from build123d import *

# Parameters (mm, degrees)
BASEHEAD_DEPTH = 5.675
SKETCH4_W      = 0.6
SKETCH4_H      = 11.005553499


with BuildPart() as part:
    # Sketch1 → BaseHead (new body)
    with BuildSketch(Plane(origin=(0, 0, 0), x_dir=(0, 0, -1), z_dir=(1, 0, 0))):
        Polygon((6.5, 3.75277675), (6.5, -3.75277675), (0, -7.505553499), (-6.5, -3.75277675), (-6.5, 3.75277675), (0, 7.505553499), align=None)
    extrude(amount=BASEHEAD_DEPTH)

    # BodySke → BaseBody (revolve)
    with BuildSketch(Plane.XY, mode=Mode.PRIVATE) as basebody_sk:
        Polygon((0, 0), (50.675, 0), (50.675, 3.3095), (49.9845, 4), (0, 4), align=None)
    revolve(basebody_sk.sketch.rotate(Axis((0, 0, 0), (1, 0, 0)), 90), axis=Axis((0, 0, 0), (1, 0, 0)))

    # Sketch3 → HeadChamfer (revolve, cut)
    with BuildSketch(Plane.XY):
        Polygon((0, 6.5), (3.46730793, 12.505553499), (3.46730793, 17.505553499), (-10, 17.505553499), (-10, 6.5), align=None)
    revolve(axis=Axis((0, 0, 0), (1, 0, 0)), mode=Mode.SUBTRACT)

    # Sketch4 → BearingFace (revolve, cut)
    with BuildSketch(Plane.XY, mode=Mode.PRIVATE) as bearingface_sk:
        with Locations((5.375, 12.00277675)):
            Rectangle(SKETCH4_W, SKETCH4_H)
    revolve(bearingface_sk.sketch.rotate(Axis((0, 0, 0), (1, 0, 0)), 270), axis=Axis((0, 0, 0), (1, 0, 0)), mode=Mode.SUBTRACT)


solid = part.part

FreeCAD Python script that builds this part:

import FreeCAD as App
import Part
import Sketcher
from FreeCAD import Vector
Q = App.Units.Quantity


def add_polygon(sketch, points):
    """Adds a closed chain of lines whose ends are joined by coincident constraints."""
    first, n = sketch.GeometryCount, len(points)
    for a, b in zip(points, points[1:] + points[:1]):
        sketch.addGeometry(Part.LineSegment(App.Vector(*a, 0), App.Vector(*b, 0)), False)
    for i in range(n):
        sketch.addConstraint(Sketcher.Constraint("Coincident", first + i, 2, first + (i + 1) % n, 1))

doc = App.newDocument("Part")
params = doc.addObject("Spreadsheet::Sheet", "Params")
for row, (alias, value) in enumerate([
    ("pad1_length", "5.675 mm"),
    ("sketch2_height", "4 mm"),
    ("revolution_angle", "360 deg"),
    ("sketch3_width", "10 mm"),
    ("sketch3_height", "5 mm"),
    ("groove_angle", "360 deg"),
    ("sketch4_width", "0.6 mm"),
    ("groove2_angle", "360 deg"),
], start=1):
    params.set(f"A{row}", alias)
    params.set(f"B{row}", "=" + value)
    params.setAlias(f"B{row}", alias)

body = doc.addObject("PartDesign::Body", "Body")

# Sketch on YZ plane
sketch1 = body.newObject("Sketcher::SketchObject", "Sketch")
sketch1.AttachmentSupport = (doc.getObject("YZ_Plane"), [""])
sketch1.MapMode = "FlatFace"
add_polygon(sketch1, [(-4, -6), (4, -6), (8, 0), (4, 6), (-4, 6), (-8, 0)])  # lines 0-5
sketch1.addConstraint([
    Sketcher.Constraint("Horizontal", 0),
    Sketcher.Constraint("Horizontal", 3),
    Sketcher.Constraint("Symmetric", 0, 2, 3, 2, -1, 1),
    Sketcher.Constraint("Symmetric", 1, 2, 4, 2, -1, 1),
    Sketcher.Constraint("PointOnObject", 1, 2, -1),
    Sketcher.Constraint("Parallel", 2, 5),
    Sketcher.Constraint("Vertical", 0, 2, 2, 2),
    Sketcher.Constraint("Angle", 1, Q("60 deg")),
    Sketcher.Constraint("DistanceY", 0, 2, 2, 2, 13.0),
    Sketcher.Constraint("DistanceX", 0, 1, 0, 2, 7.505554),
])
pad1 = body.newObject("PartDesign::Pad", "Pad")
pad1.Profile = sketch1
pad1.setExpression("Length", "Params.pad1_length")

# Sketch on XY plane
sketch2 = body.newObject("Sketcher::SketchObject", "Sketch001")
sketch2.AttachmentSupport = (doc.getObject("XY_Plane"), [""])
sketch2.MapMode = "FlatFace"
add_polygon(sketch2, [(0, 0), (50.7, 0), (50.7, 3.3), (50, 4), (0, 4)])  # lines 0-4
sketch2.addConstraint([
    Sketcher.Constraint("Horizontal", 0),
    Sketcher.Constraint("Vertical", 1),
    Sketcher.Constraint("Horizontal", 3),
    Sketcher.Constraint("Vertical", 4),
    Sketcher.Constraint("Coincident", 4, 2, -1, 1),
    Sketcher.Constraint("DistanceY", 4, 2, 4, 1, 4.0),
    Sketcher.Constraint("Angle", 2, Q("135 deg")),
    Sketcher.Constraint("DistanceX", 0, 1, 0, 2, 50.675),
    Sketcher.Constraint("DistanceX", 3, 2, 3, 1, 49.9845),
])
sketch2.setExpression("Constraints[10]", "Params.sketch2_height")
revolution = body.newObject("PartDesign::Revolution", "Revolution")
revolution.Profile = sketch2
revolution.ReferenceAxis = (sketch2, ["H_Axis"])
revolution.setExpression("Angle", "Params.revolution_angle")

# Sketch on XY plane
sketch3 = body.newObject("Sketcher::SketchObject", "Sketch002")
sketch3.AttachmentSupport = (doc.getObject("XY_Plane"), [""])
sketch3.MapMode = "FlatFace"
add_polygon(sketch3, [(0, 6), (3, 13), (3, 18), (-10, 18), (-10, 6)])  # lines 0-4
sketch3.addConstraint([
    Sketcher.Constraint("Vertical", 1),
    Sketcher.Constraint("Horizontal", 2),
    Sketcher.Constraint("Vertical", 3),
    Sketcher.Constraint("Horizontal", 4),
    Sketcher.Constraint("PointOnObject", 4, 2, -2),
    Sketcher.Constraint("DistanceX", 4, 1, 4, 2, 10.0),
    Sketcher.Constraint("DistanceY", 1, 1, 1, 2, 5.0),
    Sketcher.Constraint("Angle", 0, Q("60 deg")),
    Sketcher.Constraint("DistanceY", -1, 1, 3, 2, 6.5),
    Sketcher.Constraint("DistanceX", 2, 2, 2, 1, 13.467308),
])
sketch3.setExpression("Constraints[10]", "Params.sketch3_width")
sketch3.setExpression("Constraints[11]", "Params.sketch3_height")
groove = body.newObject("PartDesign::Groove", "Groove")
groove.Profile = sketch3
groove.ReferenceAxis = (sketch3, ["H_Axis"])
groove.setExpression("Angle", "Params.groove_angle")

# Sketch on XY plane
sketch4 = body.newObject("Sketcher::SketchObject", "Sketch003")
sketch4.AttachmentSupport = (doc.getObject("XY_Plane"), [""])
sketch4.MapMode = "FlatFace"
add_polygon(sketch4, [(5.1, 17.5), (5.1, 6.5), (5.7, 6.5), (5.7, 17.5)])  # lines 0-3
sketch4.addConstraint([
    Sketcher.Constraint("Vertical", 0),
    Sketcher.Constraint("Horizontal", 1),
    Sketcher.Constraint("Vertical", 2),
    Sketcher.Constraint("Horizontal", 3),
    Sketcher.Constraint("DistanceX", 1, 1, 1, 2, 0.6),
    Sketcher.Constraint("DistanceY", -1, 1, 0, 2, 6.5),
    Sketcher.Constraint("DistanceX", -1, 1, 0, 2, 5.075),
    Sketcher.Constraint("DistanceY", 0, 2, 0, 1, 11.005553),
])
sketch4.setExpression("Constraints[8]", "Params.sketch4_width")
groove2 = body.newObject("PartDesign::Groove", "Groove001")
groove2.Profile = sketch4
groove2.ReferenceAxis = (sketch4, ["H_Axis"])
groove2.setExpression("Angle", "Params.groove2_angle")

doc.recompute()
